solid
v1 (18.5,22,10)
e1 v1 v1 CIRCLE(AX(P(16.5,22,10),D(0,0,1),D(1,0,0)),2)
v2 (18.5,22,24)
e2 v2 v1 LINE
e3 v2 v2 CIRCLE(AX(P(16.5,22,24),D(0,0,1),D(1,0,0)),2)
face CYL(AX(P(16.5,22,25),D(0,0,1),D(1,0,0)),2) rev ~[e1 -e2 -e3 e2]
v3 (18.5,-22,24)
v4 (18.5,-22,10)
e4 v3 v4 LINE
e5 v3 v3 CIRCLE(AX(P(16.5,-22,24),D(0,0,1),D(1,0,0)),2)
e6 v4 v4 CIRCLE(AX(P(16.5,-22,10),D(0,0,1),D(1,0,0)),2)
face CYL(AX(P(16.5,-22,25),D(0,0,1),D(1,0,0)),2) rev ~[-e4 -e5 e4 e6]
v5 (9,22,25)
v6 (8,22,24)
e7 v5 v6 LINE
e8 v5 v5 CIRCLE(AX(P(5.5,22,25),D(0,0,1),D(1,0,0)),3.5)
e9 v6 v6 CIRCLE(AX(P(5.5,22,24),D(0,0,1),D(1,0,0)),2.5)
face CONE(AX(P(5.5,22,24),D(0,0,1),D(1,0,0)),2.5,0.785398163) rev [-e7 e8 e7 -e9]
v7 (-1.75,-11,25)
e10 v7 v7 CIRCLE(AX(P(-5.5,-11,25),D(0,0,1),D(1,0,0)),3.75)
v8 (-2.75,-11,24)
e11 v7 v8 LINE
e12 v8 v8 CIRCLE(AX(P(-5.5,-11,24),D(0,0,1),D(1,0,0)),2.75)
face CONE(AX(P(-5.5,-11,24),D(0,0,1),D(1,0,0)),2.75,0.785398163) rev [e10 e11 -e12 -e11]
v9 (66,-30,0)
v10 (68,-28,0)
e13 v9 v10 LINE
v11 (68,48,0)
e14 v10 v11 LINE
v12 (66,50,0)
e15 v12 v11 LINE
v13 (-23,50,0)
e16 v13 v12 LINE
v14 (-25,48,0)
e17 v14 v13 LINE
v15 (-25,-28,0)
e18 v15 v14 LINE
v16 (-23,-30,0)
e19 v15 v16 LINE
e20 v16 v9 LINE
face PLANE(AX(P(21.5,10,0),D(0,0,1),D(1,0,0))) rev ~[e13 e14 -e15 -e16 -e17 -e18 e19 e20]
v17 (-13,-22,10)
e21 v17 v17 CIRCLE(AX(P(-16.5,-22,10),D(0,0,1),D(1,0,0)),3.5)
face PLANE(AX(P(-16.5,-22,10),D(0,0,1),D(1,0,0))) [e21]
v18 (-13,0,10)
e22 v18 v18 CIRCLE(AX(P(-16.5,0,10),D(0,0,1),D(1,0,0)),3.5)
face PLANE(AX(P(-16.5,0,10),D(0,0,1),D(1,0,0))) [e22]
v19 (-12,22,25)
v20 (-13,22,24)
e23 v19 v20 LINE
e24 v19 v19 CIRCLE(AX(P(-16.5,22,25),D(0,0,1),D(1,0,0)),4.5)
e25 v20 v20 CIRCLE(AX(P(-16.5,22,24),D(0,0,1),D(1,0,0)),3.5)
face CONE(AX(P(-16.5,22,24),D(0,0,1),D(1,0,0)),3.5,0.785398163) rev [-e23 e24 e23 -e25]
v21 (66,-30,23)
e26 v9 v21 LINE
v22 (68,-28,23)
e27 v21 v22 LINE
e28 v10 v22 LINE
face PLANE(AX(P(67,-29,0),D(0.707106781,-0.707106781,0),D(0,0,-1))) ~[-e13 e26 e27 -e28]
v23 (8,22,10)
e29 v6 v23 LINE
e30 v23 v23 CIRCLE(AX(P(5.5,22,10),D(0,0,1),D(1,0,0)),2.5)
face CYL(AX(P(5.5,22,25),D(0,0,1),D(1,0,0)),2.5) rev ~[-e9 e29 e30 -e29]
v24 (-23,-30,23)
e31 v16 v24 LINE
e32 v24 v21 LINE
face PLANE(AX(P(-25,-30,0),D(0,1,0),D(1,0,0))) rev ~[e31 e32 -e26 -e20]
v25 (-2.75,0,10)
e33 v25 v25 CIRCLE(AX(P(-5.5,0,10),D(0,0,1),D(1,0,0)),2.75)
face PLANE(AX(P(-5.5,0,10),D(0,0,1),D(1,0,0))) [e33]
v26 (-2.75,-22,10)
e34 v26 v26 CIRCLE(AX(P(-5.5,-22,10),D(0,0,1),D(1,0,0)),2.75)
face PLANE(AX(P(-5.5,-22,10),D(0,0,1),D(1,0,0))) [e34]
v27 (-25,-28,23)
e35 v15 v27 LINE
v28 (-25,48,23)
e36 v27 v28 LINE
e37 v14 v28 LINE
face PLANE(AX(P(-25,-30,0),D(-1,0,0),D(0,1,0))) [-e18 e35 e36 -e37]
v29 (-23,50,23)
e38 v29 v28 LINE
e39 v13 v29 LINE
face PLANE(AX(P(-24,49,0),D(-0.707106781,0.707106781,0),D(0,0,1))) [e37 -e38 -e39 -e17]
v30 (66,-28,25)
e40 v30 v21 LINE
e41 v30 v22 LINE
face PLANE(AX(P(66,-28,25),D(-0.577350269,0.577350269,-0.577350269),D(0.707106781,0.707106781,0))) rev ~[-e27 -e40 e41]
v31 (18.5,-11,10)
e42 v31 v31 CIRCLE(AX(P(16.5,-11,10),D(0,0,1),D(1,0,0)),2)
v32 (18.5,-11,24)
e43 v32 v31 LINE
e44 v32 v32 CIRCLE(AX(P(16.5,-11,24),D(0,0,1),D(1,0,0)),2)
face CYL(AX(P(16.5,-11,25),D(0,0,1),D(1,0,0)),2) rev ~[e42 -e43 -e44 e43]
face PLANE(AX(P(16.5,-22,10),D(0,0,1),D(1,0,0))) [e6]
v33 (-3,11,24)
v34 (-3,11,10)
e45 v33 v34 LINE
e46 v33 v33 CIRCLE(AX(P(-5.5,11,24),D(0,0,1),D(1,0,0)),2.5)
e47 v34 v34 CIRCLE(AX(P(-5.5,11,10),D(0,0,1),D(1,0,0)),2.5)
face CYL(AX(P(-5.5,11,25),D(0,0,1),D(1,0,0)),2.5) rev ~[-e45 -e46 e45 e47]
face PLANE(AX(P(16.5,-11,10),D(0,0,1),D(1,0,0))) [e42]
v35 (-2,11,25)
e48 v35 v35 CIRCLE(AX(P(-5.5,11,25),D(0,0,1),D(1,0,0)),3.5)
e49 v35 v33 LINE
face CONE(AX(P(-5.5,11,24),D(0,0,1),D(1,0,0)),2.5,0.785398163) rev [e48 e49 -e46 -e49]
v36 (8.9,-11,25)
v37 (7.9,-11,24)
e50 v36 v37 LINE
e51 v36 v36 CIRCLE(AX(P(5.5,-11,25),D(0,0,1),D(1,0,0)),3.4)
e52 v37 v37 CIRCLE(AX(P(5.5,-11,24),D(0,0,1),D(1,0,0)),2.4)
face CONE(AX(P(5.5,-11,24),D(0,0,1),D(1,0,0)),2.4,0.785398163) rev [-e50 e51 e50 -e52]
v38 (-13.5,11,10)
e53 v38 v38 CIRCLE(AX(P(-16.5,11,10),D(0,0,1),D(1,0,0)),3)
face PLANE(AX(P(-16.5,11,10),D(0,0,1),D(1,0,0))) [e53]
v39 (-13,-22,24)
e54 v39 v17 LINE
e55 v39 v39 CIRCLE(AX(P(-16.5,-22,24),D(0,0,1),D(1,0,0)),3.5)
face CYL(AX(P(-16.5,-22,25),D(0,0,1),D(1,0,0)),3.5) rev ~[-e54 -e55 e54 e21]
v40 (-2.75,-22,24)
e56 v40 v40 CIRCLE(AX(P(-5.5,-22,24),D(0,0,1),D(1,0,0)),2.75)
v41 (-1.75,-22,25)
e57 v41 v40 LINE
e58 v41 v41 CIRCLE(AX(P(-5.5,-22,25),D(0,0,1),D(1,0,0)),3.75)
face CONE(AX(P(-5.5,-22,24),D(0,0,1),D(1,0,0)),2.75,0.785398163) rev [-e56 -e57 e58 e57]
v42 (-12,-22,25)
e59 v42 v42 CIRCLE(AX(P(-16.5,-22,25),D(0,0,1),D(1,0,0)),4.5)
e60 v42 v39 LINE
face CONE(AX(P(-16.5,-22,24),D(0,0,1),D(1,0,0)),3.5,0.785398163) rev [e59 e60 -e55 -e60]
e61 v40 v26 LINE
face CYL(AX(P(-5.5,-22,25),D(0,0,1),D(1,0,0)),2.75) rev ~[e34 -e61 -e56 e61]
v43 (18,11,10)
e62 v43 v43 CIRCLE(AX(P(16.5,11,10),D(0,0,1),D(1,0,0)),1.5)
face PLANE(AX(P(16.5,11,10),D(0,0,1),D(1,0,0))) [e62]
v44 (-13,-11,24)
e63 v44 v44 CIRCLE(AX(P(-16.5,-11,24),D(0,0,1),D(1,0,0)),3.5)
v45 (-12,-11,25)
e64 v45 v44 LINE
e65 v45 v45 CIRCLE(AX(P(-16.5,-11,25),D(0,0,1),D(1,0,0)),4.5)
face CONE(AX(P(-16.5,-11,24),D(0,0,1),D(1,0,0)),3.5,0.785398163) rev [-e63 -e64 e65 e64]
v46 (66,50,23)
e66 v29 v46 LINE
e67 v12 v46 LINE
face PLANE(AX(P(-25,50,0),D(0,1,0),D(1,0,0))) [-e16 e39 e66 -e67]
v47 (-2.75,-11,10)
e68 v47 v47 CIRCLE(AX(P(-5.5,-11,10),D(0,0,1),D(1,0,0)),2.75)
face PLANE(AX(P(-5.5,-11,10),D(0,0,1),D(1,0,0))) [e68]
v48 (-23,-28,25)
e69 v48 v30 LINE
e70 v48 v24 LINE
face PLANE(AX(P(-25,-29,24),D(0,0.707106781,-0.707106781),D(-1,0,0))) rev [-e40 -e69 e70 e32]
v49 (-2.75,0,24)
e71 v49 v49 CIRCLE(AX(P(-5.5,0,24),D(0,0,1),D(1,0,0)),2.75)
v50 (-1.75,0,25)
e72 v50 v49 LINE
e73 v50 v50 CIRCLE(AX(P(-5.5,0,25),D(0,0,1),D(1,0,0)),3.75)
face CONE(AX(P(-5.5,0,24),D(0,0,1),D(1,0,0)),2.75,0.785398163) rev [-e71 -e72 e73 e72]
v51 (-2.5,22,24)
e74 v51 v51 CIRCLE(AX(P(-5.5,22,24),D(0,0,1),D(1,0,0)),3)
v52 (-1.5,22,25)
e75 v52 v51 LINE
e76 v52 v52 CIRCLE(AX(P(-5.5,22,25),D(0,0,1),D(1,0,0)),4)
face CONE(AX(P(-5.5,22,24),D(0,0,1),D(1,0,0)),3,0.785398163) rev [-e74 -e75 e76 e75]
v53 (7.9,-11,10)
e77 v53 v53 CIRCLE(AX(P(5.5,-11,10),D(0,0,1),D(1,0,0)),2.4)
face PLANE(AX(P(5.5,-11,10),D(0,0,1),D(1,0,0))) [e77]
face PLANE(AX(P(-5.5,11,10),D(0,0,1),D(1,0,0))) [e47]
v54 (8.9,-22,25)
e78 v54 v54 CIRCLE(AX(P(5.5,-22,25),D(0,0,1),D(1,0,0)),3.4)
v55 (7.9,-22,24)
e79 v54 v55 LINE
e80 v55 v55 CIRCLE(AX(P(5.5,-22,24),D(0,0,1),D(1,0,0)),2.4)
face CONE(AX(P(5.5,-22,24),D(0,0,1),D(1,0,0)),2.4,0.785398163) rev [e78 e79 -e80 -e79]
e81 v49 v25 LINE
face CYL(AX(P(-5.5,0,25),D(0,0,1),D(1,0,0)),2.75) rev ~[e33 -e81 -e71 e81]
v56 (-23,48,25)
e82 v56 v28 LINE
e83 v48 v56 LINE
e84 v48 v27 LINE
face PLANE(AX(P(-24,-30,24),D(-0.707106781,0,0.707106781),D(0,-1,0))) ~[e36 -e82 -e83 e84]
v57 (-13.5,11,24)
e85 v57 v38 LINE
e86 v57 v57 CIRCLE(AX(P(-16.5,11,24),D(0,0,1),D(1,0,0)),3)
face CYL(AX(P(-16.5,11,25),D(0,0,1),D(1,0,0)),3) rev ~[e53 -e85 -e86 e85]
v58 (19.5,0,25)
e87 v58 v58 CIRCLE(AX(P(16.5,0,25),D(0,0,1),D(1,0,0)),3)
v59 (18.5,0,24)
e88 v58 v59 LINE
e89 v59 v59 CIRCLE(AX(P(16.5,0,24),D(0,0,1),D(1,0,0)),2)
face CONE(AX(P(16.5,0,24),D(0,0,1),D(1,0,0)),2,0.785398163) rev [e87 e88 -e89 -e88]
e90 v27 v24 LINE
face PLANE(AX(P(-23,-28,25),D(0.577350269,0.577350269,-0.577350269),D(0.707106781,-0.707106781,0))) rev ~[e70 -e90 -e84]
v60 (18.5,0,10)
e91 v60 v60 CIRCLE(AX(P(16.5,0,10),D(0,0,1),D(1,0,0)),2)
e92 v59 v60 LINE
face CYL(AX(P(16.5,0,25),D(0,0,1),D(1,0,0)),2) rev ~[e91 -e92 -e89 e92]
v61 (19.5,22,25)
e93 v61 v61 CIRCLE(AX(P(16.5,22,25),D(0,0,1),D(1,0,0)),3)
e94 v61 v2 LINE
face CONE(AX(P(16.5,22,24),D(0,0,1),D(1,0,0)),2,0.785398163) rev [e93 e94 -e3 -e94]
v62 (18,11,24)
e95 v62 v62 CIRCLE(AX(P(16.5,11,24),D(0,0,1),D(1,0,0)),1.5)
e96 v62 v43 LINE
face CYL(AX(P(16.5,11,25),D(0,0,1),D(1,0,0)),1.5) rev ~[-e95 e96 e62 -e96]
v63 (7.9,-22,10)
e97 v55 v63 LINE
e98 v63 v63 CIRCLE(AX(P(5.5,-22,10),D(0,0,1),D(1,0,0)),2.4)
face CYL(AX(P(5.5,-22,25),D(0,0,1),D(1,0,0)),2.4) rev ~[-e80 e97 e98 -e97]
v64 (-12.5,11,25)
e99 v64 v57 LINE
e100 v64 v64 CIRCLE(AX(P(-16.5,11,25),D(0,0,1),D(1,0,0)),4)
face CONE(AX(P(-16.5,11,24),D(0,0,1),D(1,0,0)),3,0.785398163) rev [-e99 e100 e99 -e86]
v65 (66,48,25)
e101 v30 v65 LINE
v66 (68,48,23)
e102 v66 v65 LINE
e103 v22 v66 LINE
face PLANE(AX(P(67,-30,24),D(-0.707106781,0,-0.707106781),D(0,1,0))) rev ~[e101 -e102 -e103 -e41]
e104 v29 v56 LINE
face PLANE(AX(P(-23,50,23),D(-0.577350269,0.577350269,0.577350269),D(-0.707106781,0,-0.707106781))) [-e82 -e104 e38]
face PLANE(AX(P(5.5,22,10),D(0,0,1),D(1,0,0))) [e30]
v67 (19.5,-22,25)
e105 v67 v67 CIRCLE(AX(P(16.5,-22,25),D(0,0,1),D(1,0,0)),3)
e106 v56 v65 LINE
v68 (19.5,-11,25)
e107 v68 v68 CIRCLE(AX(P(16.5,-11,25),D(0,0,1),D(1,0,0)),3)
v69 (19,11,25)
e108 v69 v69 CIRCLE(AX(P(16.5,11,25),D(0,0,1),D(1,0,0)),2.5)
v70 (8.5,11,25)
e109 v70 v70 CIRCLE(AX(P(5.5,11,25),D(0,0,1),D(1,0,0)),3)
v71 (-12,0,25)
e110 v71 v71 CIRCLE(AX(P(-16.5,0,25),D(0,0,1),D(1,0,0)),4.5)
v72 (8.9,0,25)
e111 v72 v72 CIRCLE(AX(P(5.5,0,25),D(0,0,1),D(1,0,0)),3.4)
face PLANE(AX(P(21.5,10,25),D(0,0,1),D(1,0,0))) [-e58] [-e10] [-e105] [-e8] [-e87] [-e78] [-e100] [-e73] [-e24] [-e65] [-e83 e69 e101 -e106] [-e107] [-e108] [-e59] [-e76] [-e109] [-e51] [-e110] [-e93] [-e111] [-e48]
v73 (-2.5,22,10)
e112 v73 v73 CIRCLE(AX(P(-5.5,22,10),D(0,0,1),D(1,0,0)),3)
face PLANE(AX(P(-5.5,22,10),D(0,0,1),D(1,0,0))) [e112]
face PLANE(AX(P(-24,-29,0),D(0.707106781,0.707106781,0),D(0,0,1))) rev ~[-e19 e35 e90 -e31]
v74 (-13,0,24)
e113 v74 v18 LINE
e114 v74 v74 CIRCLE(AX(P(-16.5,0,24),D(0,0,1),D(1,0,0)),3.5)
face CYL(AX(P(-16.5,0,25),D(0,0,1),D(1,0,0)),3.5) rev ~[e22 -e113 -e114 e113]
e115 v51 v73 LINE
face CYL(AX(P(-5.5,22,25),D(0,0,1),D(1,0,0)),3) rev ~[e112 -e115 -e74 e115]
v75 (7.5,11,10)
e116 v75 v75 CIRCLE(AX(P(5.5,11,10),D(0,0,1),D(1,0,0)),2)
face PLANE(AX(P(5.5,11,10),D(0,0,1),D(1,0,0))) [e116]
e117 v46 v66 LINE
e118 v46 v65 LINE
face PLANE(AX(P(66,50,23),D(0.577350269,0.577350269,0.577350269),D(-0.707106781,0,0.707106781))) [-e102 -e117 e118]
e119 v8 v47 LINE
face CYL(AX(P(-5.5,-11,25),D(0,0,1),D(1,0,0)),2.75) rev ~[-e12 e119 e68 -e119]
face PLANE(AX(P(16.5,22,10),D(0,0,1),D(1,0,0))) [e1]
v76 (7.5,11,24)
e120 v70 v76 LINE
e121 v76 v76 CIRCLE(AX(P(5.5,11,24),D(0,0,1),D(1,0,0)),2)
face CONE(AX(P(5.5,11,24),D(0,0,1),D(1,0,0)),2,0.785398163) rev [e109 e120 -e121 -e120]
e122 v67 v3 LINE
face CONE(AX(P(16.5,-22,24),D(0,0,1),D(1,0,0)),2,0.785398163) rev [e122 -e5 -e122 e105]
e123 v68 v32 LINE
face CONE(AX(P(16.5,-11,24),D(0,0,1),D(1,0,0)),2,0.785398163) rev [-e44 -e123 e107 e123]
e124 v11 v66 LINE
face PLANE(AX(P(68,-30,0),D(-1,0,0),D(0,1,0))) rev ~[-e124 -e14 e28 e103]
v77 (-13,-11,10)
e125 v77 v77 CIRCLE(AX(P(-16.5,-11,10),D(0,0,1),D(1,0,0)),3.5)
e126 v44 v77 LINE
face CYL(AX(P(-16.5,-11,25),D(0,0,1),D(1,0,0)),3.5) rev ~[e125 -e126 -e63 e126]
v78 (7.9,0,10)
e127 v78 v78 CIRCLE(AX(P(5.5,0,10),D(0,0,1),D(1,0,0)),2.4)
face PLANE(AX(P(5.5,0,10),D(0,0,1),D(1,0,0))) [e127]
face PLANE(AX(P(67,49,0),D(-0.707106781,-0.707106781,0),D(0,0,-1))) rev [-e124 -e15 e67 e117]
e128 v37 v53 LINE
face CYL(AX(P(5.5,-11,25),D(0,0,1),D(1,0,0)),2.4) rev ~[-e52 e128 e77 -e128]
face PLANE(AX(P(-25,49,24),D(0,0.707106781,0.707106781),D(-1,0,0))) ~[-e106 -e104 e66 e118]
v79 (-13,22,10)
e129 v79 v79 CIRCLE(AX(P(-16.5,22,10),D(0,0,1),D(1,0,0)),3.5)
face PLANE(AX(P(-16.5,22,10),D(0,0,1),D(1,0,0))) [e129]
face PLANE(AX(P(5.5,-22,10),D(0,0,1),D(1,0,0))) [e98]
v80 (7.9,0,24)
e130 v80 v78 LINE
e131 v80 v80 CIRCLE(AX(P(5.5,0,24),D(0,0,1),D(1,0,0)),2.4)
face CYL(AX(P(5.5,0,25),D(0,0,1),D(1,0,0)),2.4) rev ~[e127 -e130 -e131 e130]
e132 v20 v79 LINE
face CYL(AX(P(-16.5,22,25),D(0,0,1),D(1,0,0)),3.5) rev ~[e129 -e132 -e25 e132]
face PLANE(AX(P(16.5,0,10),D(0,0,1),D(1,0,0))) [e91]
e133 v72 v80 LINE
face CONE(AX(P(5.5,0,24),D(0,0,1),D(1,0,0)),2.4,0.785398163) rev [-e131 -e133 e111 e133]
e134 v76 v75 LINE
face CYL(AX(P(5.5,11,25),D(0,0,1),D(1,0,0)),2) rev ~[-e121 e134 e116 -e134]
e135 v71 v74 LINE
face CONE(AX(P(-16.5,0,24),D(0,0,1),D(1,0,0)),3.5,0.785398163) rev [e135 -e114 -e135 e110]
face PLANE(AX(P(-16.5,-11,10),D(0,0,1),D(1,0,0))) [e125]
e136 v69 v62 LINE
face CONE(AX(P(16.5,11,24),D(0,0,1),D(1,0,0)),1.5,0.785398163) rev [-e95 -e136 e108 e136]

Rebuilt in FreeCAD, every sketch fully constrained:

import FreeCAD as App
import Part
import Sketcher
from FreeCAD import Vector
Q = App.Units.Quantity


def edges_at(feature, points):
    """Names of the edges that pass closest to the given points."""
    edges = feature.Shape.Edges
    near = lambda p: min(range(len(edges)), key=lambda i: edges[i].distToShape(Part.Vertex(*p))[0])
    return sorted({f"Edge{near(p) + 1}" for p in points})


def add_polygon(sketch, points):
    """Adds a closed chain of lines whose ends are joined by coincident constraints."""
    first, n = sketch.GeometryCount, len(points)
    for a, b in zip(points, points[1:] + points[:1]):
        sketch.addGeometry(Part.LineSegment(App.Vector(*a, 0), App.Vector(*b, 0)), False)
    for i in range(n):
        sketch.addConstraint(Sketcher.Constraint("Coincident", first + i, 2, first + (i + 1) % n, 1))

doc = App.newDocument("Part")
body = doc.addObject("PartDesign::Body", "Body")

sketch1 = body.newObject("Sketcher::SketchObject", "Sketch")
sketch1.AttachmentSupport = (doc.getObject("XY_Plane"), [""])
sketch1.MapMode = "FlatFace"
add_polygon(sketch1, [(-25, 50), (-25, -30), (68, -30), (68, 50)])
sketch1.addConstraint([
    Sketcher.Constraint("Vertical", 0),
    Sketcher.Constraint("Horizontal", 1),
    Sketcher.Constraint("Vertical", 2),
    Sketcher.Constraint("Horizontal", 3),
    Sketcher.Constraint("DistanceX", 1, 1, 1, 2, Q("93 mm")),
    Sketcher.Constraint("DistanceY", 0, 2, 0, 1, Q("80 mm")),
    Sketcher.Constraint("DistanceX", 0, 2, -1, 1, Q("25 mm")),
    Sketcher.Constraint("DistanceY", 0, 2, -1, 1, Q("30 mm")),
])
pad1 = body.newObject("PartDesign::Pad", "Pad")
pad1.Profile = sketch1
pad1.Length = 25

sketch2 = body.newObject("Sketcher::SketchObject", "Sketch001")
sketch2.AttachmentSupport = (doc.getObject("XY_Plane"), [""])
sketch2.MapMode = "FlatFace"
sketch2.AttachmentOffset = App.Placement(Vector(0, 0, 25), App.Rotation())
sketch2.addGeometry([
    Part.Circle(Vector(-16.5, -22, 0), Vector(0, 0, 1), 3.5),
    Part.Circle(Vector(-16.5, -11, 0), Vector(0, 0, 1), 3.5),
    Part.Circle(Vector(-16.5, 0, 0), Vector(0, 0, 1), 3.5),
    Part.Circle(Vector(-16.5, 11, 0), Vector(0, 0, 1), 3),
    Part.Circle(Vector(-5.5, -22, 0), Vector(0, 0, 1), 2.8),
    Part.Circle(Vector(-5.5, -11, 0), Vector(0, 0, 1), 2.8),
    Part.Circle(Vector(-5.5, 0, 0), Vector(0, 0, 1), 2.8),
    Part.Circle(Vector(-5.5, 11, 0), Vector(0, 0, 1), 2.5),
    Part.Circle(Vector(5.5, -22, 0), Vector(0, 0, 1), 2.4),
    Part.Circle(Vector(5.5, -11, 0), Vector(0, 0, 1), 2.4),
    Part.Circle(Vector(5.5, 0, 0), Vector(0, 0, 1), 2.4),
    Part.Circle(Vector(5.5, 11, 0), Vector(0, 0, 1), 2),
    Part.Circle(Vector(16.5, -22, 0), Vector(0, 0, 1), 2),
    Part.Circle(Vector(16.5, -11, 0), Vector(0, 0, 1), 2),
    Part.Circle(Vector(16.5, 0, 0), Vector(0, 0, 1), 2),
    Part.Circle(Vector(16.5, 11, 0), Vector(0, 0, 1), 1.5),
    Part.Circle(Vector(-16.5, 22, 0), Vector(0, 0, 1), 3.5),
    Part.Circle(Vector(-5.5, 22, 0), Vector(0, 0, 1), 3),
    Part.Circle(Vector(5.5, 22, 0), Vector(0, 0, 1), 2.5),
    Part.Circle(Vector(16.5, 22, 0), Vector(0, 0, 1), 2),
], False)
sketch2.addConstraint([
    Sketcher.Constraint("Equal", 0, 1),
    Sketcher.Constraint("Equal", 1, 2),
    Sketcher.Constraint("Equal", 4, 5),
    Sketcher.Constraint("Equal", 5, 6),
    Sketcher.Constraint("Equal", 8, 9),
    Sketcher.Constraint("Equal", 9, 10),
    Sketcher.Constraint("Equal", 11, 12),
    Sketcher.Constraint("Equal", 12, 13),
    Sketcher.Constraint("Equal", 13, 14),
    Sketcher.Constraint("Equal", 2, 16),
    Sketcher.Constraint("Equal", 3, 17),
    Sketcher.Constraint("Equal", 7, 18),
    Sketcher.Constraint("Equal", 14, 19),
    Sketcher.Constraint("Symmetric", 7, 3, 9, 3, -1, 1),
    Sketcher.Constraint("Symmetric", 6, 3, 10, 3, -1, 1),
    Sketcher.Constraint("Symmetric", 5, 3, 11, 3, -1, 1),
    Sketcher.Constraint("Symmetric", 3, 3, 13, 3, -1, 1),
    Sketcher.Constraint("Symmetric", 2, 3, 14, 3, -1, 1),
    Sketcher.Constraint("Symmetric", 1, 3, 15, 3, -1, 1),
    Sketcher.Constraint("Symmetric", 12, 3, 16, 3, -1, 1),
    Sketcher.Constraint("Symmetric", 8, 3, 17, 3, -1, 1),
    Sketcher.Constraint("Symmetric", 4, 3, 18, 3, -1, 1),
    Sketcher.Constraint("Symmetric", 0, 3, 19, 3, -1, 1),
    Sketcher.Constraint("Symmetric", 4, 3, 8, 3, -2),
    Sketcher.Constraint("Symmetric", 5, 3, 9, 3, -2),
    Sketcher.Constraint("Symmetric", 0, 3, 12, 3, -2),
    Sketcher.Constraint("Symmetric", 1, 3, 13, 3, -2),
    Sketcher.Constraint("PointOnObject", 2, 3, -1),
    Sketcher.Constraint("PointOnObject", 6, 3, -1),
    Sketcher.Constraint("Horizontal", 0, 3, 4, 3),
    Sketcher.Constraint("Horizontal", 1, 3, 5, 3),
    Sketcher.Constraint("Vertical", 0, 3, 1, 3),
    Sketcher.Constraint("Vertical", 1, 3, 2, 3),
    Sketcher.Constraint("Vertical", 4, 3, 5, 3),
    Sketcher.Constraint("Vertical", 5, 3, 6, 3),
    Sketcher.Constraint("Diameter", 0, Q("7 mm")),
    Sketcher.Constraint("Diameter", 3, Q("6 mm")),
    Sketcher.Constraint("Diameter", 7, Q("5 mm")),
    Sketcher.Constraint("Diameter", 11, Q("4 mm")),
    Sketcher.Constraint("Diameter", 15, Q("3 mm")),
    Sketcher.Constraint("Diameter", 4, Q("5.5 mm")),
    Sketcher.Constraint("Diameter", 8, Q("4.8 mm")),
    Sketcher.Constraint("DistanceY", 0, 3, -1, 1, Q("22 mm")),
    Sketcher.Constraint("DistanceY", 1, 3, -1, 1, Q("11 mm")),
    Sketcher.Constraint("DistanceX", 0, 3, 4, 3, Q("11 mm")),
    Sketcher.Constraint("DistanceX", 4, 3, 8, 3, Q("11 mm")),
])
pocket1 = body.newObject("PartDesign::Pocket", "Pocket")
pocket1.Profile = sketch2
pocket1.Length = 15
doc.recompute()

chamfer = body.newObject("PartDesign::Chamfer", "Chamfer")
chamfer.Base = (pocket1, edges_at(pocket1, [
    (68, -30, 12.5),
    (-25, -30, 12.5),
    (-25, 10, 25),
    (21.5, -30, 25),
    (68, 10, 25),
    (68, 50, 12.5),
    (21.5, 50, 25),
    (-25, 50, 12.5),
]))
chamfer.Size = 2
doc.recompute()

chamfer2 = body.newObject("PartDesign::Chamfer", "Chamfer001")
chamfer2.Base = (chamfer, edges_at(chamfer, [
    (-20, -22, 25),
    (-8.25, -22, 25),
    (3.1, -22, 25),
    (14.5, -22, 25),
    (14.5, -11, 25),
    (14.5, 0, 25),
    (15, 11, 25),
    (14.5, 22, 25),
    (3, 22, 25),
    (3.5, 11, 25),
    (3.1, 0, 25),
    (3.1, -11, 25),
    (-8.25, -11, 25),
    (-8.25, 0, 25),
    (-8, 11, 25),
    (-8.5, 22, 25),
    (-20, 22, 25),
    (-19.5, 11, 25),
    (-20, 0, 25),
    (-20, -11, 25),
]))
chamfer2.Size = 1

doc.recompute()
